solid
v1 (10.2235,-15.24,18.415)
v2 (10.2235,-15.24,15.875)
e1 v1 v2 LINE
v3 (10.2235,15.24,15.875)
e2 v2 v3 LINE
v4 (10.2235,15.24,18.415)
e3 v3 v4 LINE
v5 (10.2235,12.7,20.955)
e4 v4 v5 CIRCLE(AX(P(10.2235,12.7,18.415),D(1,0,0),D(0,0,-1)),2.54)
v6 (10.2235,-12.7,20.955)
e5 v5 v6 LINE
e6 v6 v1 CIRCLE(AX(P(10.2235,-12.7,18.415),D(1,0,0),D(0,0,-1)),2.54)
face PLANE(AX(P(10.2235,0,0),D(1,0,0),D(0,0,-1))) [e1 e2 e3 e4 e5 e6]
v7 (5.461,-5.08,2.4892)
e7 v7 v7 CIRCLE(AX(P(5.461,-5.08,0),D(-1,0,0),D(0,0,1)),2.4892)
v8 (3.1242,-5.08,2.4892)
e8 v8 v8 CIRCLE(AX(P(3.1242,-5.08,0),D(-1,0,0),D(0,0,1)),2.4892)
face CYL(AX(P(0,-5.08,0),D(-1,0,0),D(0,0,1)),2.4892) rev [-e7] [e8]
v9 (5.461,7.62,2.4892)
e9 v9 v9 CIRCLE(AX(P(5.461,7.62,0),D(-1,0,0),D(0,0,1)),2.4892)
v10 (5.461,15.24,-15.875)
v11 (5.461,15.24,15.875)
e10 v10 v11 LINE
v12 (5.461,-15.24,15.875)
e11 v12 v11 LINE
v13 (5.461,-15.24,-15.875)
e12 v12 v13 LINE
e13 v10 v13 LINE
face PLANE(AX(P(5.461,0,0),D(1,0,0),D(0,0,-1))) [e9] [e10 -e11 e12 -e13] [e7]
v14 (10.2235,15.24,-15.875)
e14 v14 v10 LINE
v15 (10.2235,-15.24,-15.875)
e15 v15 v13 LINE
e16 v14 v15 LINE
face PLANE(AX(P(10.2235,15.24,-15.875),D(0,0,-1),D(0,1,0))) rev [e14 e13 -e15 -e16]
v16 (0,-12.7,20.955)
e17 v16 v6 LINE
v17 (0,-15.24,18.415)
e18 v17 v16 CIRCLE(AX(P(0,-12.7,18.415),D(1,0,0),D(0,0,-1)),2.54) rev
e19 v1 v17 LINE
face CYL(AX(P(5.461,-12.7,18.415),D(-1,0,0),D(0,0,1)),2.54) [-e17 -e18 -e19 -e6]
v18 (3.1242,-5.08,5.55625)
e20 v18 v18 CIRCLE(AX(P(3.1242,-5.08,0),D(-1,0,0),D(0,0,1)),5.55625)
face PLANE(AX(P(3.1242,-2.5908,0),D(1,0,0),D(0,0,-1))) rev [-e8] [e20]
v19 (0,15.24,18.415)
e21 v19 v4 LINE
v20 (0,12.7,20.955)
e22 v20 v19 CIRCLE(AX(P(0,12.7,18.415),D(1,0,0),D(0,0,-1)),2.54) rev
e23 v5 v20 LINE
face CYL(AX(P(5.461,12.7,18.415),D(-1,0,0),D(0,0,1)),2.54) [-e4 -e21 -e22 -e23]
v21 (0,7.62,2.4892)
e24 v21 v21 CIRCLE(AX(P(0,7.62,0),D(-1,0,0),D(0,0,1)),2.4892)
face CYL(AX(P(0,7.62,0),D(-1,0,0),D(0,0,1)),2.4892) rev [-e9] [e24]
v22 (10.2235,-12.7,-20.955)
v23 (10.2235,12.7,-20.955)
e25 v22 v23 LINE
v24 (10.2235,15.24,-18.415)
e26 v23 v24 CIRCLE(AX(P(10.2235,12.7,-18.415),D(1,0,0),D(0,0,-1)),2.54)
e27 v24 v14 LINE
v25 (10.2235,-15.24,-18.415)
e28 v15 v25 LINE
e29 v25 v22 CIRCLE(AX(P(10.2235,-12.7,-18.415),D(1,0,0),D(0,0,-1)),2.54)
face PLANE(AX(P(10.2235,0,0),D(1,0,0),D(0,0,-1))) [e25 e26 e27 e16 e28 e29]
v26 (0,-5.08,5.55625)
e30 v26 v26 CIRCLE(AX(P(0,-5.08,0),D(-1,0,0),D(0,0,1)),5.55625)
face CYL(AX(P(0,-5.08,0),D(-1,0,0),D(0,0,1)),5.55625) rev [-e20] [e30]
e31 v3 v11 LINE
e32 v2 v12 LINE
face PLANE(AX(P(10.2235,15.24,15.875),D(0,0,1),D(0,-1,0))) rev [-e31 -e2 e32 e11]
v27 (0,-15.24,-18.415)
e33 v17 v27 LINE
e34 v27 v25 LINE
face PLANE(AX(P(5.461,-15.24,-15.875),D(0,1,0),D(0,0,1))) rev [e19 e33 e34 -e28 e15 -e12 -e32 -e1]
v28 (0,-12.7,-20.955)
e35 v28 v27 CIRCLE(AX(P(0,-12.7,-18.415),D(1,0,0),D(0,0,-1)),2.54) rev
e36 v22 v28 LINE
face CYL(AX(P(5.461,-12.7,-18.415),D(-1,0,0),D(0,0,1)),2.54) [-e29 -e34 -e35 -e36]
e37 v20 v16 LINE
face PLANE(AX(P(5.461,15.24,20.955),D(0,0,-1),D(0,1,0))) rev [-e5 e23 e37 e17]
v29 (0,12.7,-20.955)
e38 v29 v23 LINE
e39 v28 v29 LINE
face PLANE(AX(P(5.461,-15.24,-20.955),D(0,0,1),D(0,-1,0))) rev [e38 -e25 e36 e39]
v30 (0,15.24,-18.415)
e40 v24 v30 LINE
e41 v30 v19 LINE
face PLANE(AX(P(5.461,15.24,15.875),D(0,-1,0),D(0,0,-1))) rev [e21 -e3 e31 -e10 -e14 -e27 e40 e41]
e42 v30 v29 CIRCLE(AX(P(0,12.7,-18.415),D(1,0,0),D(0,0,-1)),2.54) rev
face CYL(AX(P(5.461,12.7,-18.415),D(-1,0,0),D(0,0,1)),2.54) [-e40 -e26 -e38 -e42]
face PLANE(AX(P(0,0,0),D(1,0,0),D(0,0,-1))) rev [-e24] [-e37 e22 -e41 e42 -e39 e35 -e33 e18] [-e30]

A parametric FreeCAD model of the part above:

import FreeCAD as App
import Part
import Sketcher

V = App.Vector
Q = App.Units.Quantity


def edges_at(feature, points):
    """Names of the edges that pass closest to the given points."""
    edges = feature.Shape.Edges
    near = lambda p: min(range(len(edges)), key=lambda i: edges[i].distToShape(Part.Vertex(*p))[0])
    return sorted({f"Edge{near(p) + 1}" for p in points})

doc = App.newDocument("Part")
body = doc.addObject("PartDesign::Body", "Body")

# Sketch on YZ plane
sketch1 = doc.addObject("Sketcher::SketchObject", "Sketch")
body.addObject(sketch1)
sketch1.AttachmentSupport = (doc.YZ_Plane, [""])
sketch1.MapMode = "FlatFace"
sketch1.addGeometry([
    Part.LineSegment(V(-15.24, -20.955, 0), V(15.24, -20.955, 0)),
    Part.LineSegment(V(15.24, -20.955, 0), V(15.24, 20.955, 0)),
    Part.LineSegment(V(15.24, 20.955, 0), V(-15.24, 20.955, 0)),
    Part.LineSegment(V(-15.24, 20.955, 0), V(-15.24, -20.955, 0)),
], False)
sketch1.addConstraint([
    Sketcher.Constraint("Coincident", 0, 2, 1, 1),
    Sketcher.Constraint("Coincident", 1, 2, 2, 1),
    Sketcher.Constraint("Coincident", 2, 2, 3, 1),
    Sketcher.Constraint("Coincident", 3, 2, 0, 1),
    Sketcher.Constraint("Horizontal", 0),
    Sketcher.Constraint("Vertical", 1),
    Sketcher.Constraint("Horizontal", 2),
    Sketcher.Constraint("Vertical", 3),
    Sketcher.Constraint("Symmetric", 0, 2, 2, 2, -1, 1),
    Sketcher.Constraint("DistanceX", 0, 1, 0, 2, Q("1.2 in")),
    Sketcher.Constraint("DistanceY", 1, 1, 1, 2, Q("1.65 in")),
])
pad1 = doc.addObject("PartDesign::Pad", "Pad")
body.addObject(pad1)
pad1.Profile = sketch1
pad1.Length = Q("0.215 in")

# Sketch on YZ plane
sketch2 = doc.addObject("Sketcher::SketchObject", "Sketch001")
body.addObject(sketch2)
sketch2.AttachmentSupport = (doc.YZ_Plane, [""])
sketch2.MapMode = "FlatFace"
sketch2.addGeometry(Part.Circle(V(7.62, 0, 0), V(0, 0, 1), 2.4892), False)
sketch2.addConstraint([
    Sketcher.Constraint("PointOnObject", 0, 3, -1),
    Sketcher.Constraint("Diameter", 0, Q("0.196 in")),
    Sketcher.Constraint("DistanceX", -1, 1, 0, 3, Q("0.3 in")),
])
doc.recompute()
hole = doc.addObject("PartDesign::Hole", "Hole")
body.addObject(hole)
hole.Profile = sketch2
hole.ThreadType = "None"
hole.Diameter = Q("0.196 in")
hole.DepthType = "ThroughAll"
hole.Reversed = True

# Sketch on YZ plane
sketch3 = doc.addObject("Sketcher::SketchObject", "Sketch002")
body.addObject(sketch3)
sketch3.AttachmentSupport = (doc.YZ_Plane, [""])
sketch3.MapMode = "FlatFace"
sketch3.addGeometry(Part.Circle(V(-5.08, 0, 0), V(0, 0, 1), 2.4892), False)
sketch3.addConstraint([
    Sketcher.Constraint("PointOnObject", 0, 3, -1),
    Sketcher.Constraint("Diameter", 0, Q("0.196 in")),
    Sketcher.Constraint("DistanceX", 0, 3, -1, 1, Q("0.2 in")),
])
doc.recompute()
hole2 = doc.addObject("PartDesign::Hole", "Hole001")
body.addObject(hole2)
hole2.Profile = sketch3
hole2.ThreadType = "None"
hole2.Diameter = Q("0.196 in")
hole2.DepthType = "ThroughAll"
hole2.HoleCutType = "Counterbore"
hole2.HoleCutDiameter = Q("0.4375 in")
hole2.HoleCutDepth = Q("0.123 in")
hole2.Reversed = True

# Sketch on YZ plane
sketch4 = doc.addObject("Sketcher::SketchObject", "Sketch003")
body.addObject(sketch4)
sketch4.AttachmentSupport = (doc.YZ_Plane, [""])
sketch4.MapMode = "FlatFace"
sketch4.AttachmentOffset = App.Placement(V(0, 0, 0.215 * 25.4), App.Rotation())
sketch4.addGeometry([
    Part.LineSegment(V(15.24, 20.955, 0), V(-15.24, 20.955, 0)),  # 0
    Part.LineSegment(V(-15.24, 20.955, 0), V(-15.24, 15.875, 0)),  # 1
    Part.LineSegment(V(-15.24, 15.875, 0), V(15.24, 15.875, 0)),  # 2
    Part.LineSegment(V(15.24, 15.875, 0), V(15.24, 20.955, 0)),  # 3
    Part.LineSegment(V(15.24, -15.875, 0), V(-15.24, -15.875, 0)),  # 4
    Part.LineSegment(V(-15.24, -15.875, 0), V(-15.24, -20.955, 0)),  # 5
    Part.LineSegment(V(-15.24, -20.955, 0), V(15.24, -20.955, 0)),  # 6
    Part.LineSegment(V(15.24, -20.955, 0), V(15.24, -15.875, 0)),  # 7
], False)
sketch4.addConstraint([
    Sketcher.Constraint("Coincident", 0, 2, 1, 1),
    Sketcher.Constraint("Coincident", 1, 2, 2, 1),
    Sketcher.Constraint("Coincident", 2, 2, 3, 1),
    Sketcher.Constraint("Coincident", 3, 2, 0, 1),
    Sketcher.Constraint("Coincident", 4, 2, 5, 1),
    Sketcher.Constraint("Coincident", 5, 2, 6, 1),
    Sketcher.Constraint("Coincident", 6, 2, 7, 1),
    Sketcher.Constraint("Coincident", 7, 2, 4, 1),
    Sketcher.Constraint("Horizontal", 0),
    Sketcher.Constraint("Vertical", 1),
    Sketcher.Constraint("Horizontal", 2),
    Sketcher.Constraint("Vertical", 3),
    Sketcher.Constraint("Horizontal", 4),
    Sketcher.Constraint("Vertical", 5),
    Sketcher.Constraint("Horizontal", 6),
    Sketcher.Constraint("Vertical", 7),
    Sketcher.Constraint("Symmetric", 2, 2, 4, 2, -1, 1),
    Sketcher.Constraint("Symmetric", 0, 2, 6, 2, -1, 1),
    Sketcher.Constraint("Vertical", 1, 2, 4, 2),
    Sketcher.Constraint("DistanceX", 0, 2, 0, 1, Q("1.2 in")),
    Sketcher.Constraint("DistanceY", 1, 2, 1, 1, Q("0.2 in")),
    Sketcher.Constraint("DistanceY", 4, 2, 1, 2, Q("1.25 in")),
])
pad2 = doc.addObject("PartDesign::Pad", "Pad001")
body.addObject(pad2)
pad2.Profile = sketch4
pad2.Length = Q("0.1875 in")
doc.recompute()

fillet = doc.addObject("PartDesign::Fillet", "Fillet")
body.addObject(fillet)
fillet.Base = (pad2, edges_at(pad2, [
    (5.112, 15.24, -20.955),
    (5.112, -15.24, -20.955),
    (5.112, -15.24, 20.955),
    (5.112, 15.24, 20.955),
]))
fillet.Radius = Q("0.1 in")

doc.recompute()
